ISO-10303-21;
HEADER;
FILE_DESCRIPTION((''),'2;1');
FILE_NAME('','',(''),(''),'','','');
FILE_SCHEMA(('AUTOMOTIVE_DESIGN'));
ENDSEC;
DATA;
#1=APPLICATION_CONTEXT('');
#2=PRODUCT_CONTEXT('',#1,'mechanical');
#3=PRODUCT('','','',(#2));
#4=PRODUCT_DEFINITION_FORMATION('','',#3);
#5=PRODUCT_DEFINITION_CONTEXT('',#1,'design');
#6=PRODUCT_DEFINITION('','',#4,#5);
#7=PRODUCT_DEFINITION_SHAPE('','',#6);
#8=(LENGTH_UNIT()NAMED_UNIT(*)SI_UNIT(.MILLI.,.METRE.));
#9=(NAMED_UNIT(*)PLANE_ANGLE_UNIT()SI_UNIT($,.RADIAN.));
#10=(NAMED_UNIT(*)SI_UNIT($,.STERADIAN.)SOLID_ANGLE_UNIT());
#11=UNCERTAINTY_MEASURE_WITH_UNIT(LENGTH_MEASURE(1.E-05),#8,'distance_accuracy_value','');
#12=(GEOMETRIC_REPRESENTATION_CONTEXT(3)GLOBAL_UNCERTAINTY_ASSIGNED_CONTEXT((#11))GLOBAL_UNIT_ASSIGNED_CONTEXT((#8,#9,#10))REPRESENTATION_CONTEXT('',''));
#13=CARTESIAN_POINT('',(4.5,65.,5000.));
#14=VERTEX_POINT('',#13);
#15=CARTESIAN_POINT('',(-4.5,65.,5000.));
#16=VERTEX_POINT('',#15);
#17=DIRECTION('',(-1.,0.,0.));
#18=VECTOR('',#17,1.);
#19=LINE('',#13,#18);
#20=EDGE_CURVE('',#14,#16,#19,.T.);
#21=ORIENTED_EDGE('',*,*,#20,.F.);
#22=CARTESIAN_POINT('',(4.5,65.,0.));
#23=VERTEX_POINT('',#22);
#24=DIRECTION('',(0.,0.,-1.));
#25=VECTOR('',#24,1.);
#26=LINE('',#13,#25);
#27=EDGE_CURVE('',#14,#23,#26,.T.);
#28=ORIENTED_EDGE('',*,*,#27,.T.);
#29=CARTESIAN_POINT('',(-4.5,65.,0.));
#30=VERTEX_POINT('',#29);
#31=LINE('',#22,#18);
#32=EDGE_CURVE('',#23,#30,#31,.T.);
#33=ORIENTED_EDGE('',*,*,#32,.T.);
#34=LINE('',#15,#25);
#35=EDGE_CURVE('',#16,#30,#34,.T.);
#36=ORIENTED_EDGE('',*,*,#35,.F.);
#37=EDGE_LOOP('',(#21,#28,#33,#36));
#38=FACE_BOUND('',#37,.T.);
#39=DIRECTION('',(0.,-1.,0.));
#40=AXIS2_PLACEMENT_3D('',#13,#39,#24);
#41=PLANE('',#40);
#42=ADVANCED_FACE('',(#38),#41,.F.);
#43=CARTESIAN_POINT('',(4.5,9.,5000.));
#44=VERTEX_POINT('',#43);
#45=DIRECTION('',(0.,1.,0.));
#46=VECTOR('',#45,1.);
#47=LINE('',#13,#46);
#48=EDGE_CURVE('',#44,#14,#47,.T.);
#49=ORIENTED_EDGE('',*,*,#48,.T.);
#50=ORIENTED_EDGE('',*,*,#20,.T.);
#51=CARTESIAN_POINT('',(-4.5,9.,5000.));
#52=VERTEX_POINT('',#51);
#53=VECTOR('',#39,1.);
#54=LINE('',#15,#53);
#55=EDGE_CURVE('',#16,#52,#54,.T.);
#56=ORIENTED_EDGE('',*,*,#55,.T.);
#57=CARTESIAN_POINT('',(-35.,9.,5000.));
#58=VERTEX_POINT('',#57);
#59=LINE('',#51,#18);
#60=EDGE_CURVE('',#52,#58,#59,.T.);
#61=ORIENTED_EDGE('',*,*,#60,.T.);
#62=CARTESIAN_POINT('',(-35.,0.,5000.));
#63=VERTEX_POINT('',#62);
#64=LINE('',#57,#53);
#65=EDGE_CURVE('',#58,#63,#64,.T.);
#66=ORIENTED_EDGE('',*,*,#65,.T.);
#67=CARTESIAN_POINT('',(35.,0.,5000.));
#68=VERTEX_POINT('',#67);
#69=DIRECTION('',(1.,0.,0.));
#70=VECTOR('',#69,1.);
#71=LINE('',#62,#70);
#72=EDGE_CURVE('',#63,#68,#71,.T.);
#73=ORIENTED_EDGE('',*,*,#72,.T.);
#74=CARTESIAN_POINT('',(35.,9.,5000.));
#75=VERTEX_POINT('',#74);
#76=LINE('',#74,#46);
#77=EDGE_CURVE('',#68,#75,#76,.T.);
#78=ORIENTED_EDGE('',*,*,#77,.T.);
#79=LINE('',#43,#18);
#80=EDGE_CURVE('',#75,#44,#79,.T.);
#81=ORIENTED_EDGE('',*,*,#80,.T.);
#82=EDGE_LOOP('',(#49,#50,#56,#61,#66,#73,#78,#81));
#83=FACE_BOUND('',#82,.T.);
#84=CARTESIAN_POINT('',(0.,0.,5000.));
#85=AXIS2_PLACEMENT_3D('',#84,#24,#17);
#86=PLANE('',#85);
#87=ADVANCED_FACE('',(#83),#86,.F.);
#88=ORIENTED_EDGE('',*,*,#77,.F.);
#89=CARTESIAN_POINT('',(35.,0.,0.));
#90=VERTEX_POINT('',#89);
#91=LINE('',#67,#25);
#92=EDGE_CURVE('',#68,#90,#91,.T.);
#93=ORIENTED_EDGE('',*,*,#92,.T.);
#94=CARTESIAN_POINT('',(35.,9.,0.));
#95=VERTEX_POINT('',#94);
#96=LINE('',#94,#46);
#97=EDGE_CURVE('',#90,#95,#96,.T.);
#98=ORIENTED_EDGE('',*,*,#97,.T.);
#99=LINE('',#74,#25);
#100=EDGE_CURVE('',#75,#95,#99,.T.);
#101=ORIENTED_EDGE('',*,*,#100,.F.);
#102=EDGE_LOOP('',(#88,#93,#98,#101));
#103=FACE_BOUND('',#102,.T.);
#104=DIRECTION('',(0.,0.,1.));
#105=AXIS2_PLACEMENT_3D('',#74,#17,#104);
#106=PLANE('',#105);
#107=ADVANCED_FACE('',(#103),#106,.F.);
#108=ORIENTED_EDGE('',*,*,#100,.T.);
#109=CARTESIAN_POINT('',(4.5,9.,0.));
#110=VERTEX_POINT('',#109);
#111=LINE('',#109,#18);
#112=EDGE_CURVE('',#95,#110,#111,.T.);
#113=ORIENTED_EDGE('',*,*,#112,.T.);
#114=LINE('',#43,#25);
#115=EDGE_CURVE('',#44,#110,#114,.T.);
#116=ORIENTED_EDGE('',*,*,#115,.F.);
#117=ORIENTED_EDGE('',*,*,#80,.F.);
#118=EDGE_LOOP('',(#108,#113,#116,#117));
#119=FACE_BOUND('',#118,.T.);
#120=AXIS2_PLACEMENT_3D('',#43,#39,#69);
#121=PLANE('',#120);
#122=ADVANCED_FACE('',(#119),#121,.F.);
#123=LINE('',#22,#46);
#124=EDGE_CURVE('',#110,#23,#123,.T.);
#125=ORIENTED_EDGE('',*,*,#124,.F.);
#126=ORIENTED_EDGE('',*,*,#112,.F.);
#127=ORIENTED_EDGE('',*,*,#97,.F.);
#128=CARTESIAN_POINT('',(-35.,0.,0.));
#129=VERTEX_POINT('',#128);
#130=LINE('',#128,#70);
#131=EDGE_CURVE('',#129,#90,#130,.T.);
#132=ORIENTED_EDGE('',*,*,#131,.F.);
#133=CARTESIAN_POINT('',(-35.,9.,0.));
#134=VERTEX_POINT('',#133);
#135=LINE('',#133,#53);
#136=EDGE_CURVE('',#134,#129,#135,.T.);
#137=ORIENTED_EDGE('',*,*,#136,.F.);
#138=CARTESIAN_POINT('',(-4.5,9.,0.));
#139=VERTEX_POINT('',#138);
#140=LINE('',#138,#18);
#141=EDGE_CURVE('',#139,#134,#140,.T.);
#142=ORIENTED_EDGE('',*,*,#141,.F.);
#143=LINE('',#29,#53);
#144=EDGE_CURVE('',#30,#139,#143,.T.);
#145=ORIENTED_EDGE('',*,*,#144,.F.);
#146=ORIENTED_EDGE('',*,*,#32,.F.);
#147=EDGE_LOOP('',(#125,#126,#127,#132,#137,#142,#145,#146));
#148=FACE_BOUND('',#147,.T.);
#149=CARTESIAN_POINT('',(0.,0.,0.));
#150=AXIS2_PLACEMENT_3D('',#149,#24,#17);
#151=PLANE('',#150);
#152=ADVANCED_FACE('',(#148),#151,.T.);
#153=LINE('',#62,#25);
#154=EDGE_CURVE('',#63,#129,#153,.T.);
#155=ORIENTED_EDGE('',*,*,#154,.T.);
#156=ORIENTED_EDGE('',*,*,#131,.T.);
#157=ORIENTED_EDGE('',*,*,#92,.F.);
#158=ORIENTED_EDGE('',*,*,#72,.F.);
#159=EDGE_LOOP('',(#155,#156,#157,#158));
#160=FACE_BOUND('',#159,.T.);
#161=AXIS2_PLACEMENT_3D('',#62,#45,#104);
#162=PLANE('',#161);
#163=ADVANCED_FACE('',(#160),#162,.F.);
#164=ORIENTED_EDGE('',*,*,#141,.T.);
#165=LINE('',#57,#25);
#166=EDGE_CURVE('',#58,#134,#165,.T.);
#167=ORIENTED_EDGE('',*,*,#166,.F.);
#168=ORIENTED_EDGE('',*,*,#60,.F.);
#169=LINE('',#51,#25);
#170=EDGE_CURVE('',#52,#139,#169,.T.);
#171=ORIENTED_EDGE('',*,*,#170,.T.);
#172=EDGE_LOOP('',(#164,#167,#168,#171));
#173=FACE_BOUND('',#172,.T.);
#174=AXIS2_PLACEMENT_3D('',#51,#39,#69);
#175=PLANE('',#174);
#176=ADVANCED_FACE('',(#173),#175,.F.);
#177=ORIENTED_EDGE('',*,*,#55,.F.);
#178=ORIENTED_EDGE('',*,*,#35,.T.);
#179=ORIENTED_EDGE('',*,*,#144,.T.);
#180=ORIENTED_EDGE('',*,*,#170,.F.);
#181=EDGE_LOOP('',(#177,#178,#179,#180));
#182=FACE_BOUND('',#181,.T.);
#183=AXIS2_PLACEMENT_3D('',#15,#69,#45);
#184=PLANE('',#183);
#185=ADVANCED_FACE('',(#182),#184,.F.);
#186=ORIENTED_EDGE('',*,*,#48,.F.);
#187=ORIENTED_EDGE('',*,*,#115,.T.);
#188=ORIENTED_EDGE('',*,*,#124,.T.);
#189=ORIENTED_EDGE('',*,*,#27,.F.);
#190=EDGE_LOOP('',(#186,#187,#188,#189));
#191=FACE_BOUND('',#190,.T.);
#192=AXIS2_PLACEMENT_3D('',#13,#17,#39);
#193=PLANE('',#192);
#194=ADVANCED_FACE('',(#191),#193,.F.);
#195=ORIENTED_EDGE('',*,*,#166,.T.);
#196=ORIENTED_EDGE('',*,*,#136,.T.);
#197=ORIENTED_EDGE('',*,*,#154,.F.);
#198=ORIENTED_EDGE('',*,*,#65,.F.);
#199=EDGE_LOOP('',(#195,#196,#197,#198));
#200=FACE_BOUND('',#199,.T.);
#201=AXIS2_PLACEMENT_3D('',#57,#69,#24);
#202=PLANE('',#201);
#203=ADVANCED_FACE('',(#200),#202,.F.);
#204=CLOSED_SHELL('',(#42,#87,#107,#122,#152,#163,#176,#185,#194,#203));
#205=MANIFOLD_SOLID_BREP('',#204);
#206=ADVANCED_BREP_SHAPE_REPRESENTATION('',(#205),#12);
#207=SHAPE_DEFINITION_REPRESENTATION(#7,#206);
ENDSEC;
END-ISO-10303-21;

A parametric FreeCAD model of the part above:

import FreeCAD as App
import Part
import Sketcher

V = App.Vector


def add_polygon(sketch, points):
    """Adds a closed chain of lines whose ends are joined by coincident constraints."""
    first, n = sketch.GeometryCount, len(points)
    for a, b in zip(points, points[1:] + points[:1]):
        sketch.addGeometry(Part.LineSegment(App.Vector(*a, 0), App.Vector(*b, 0)), False)
    for i in range(n):
        sketch.addConstraint(Sketcher.Constraint("Coincident", first + i, 2, first + (i + 1) % n, 1))

doc = App.newDocument("Part")
body = doc.addObject("PartDesign::Body", "Body")

sketch1 = body.newObject("Sketcher::SketchObject", "Sketch")
sketch1.AttachmentSupport = (doc.getObject("XY_Plane"), [""])
sketch1.MapMode = "FlatFace"
add_polygon(sketch1, [(4, 65), (-4, 65), (-4, 9), (-35, 9), (-35, 0), (35, 0), (35, 9), (4, 9)])
sketch1.addConstraint([
    Sketcher.Constraint("Horizontal", 0),
    Sketcher.Constraint("Vertical", 1),
    Sketcher.Constraint("Horizontal", 2),
    Sketcher.Constraint("Vertical", 3),
    Sketcher.Constraint("Horizontal", 4),
    Sketcher.Constraint("Vertical", 5),
    Sketcher.Constraint("Horizontal", 6),
    Sketcher.Constraint("Vertical", 7),
    Sketcher.Constraint("Symmetric", 3, 2, 4, 2, -1, 1),
    Sketcher.Constraint("Symmetric", 1, 2, 6, 2, -2),
    Sketcher.Constraint("Equal", 0, 3),
    Sketcher.Constraint("DistanceX", 0, 2, 0, 1, 9.0),
    Sketcher.Constraint("DistanceX", 4, 1, 4, 2, 70.0),
    Sketcher.Constraint("DistanceY", 1, 2, 1, 1, 56.0),
])
pad1 = body.newObject("PartDesign::Pad", "Pad")
pad1.Profile = sketch1
pad1.Length = 5000

doc.recompute()
